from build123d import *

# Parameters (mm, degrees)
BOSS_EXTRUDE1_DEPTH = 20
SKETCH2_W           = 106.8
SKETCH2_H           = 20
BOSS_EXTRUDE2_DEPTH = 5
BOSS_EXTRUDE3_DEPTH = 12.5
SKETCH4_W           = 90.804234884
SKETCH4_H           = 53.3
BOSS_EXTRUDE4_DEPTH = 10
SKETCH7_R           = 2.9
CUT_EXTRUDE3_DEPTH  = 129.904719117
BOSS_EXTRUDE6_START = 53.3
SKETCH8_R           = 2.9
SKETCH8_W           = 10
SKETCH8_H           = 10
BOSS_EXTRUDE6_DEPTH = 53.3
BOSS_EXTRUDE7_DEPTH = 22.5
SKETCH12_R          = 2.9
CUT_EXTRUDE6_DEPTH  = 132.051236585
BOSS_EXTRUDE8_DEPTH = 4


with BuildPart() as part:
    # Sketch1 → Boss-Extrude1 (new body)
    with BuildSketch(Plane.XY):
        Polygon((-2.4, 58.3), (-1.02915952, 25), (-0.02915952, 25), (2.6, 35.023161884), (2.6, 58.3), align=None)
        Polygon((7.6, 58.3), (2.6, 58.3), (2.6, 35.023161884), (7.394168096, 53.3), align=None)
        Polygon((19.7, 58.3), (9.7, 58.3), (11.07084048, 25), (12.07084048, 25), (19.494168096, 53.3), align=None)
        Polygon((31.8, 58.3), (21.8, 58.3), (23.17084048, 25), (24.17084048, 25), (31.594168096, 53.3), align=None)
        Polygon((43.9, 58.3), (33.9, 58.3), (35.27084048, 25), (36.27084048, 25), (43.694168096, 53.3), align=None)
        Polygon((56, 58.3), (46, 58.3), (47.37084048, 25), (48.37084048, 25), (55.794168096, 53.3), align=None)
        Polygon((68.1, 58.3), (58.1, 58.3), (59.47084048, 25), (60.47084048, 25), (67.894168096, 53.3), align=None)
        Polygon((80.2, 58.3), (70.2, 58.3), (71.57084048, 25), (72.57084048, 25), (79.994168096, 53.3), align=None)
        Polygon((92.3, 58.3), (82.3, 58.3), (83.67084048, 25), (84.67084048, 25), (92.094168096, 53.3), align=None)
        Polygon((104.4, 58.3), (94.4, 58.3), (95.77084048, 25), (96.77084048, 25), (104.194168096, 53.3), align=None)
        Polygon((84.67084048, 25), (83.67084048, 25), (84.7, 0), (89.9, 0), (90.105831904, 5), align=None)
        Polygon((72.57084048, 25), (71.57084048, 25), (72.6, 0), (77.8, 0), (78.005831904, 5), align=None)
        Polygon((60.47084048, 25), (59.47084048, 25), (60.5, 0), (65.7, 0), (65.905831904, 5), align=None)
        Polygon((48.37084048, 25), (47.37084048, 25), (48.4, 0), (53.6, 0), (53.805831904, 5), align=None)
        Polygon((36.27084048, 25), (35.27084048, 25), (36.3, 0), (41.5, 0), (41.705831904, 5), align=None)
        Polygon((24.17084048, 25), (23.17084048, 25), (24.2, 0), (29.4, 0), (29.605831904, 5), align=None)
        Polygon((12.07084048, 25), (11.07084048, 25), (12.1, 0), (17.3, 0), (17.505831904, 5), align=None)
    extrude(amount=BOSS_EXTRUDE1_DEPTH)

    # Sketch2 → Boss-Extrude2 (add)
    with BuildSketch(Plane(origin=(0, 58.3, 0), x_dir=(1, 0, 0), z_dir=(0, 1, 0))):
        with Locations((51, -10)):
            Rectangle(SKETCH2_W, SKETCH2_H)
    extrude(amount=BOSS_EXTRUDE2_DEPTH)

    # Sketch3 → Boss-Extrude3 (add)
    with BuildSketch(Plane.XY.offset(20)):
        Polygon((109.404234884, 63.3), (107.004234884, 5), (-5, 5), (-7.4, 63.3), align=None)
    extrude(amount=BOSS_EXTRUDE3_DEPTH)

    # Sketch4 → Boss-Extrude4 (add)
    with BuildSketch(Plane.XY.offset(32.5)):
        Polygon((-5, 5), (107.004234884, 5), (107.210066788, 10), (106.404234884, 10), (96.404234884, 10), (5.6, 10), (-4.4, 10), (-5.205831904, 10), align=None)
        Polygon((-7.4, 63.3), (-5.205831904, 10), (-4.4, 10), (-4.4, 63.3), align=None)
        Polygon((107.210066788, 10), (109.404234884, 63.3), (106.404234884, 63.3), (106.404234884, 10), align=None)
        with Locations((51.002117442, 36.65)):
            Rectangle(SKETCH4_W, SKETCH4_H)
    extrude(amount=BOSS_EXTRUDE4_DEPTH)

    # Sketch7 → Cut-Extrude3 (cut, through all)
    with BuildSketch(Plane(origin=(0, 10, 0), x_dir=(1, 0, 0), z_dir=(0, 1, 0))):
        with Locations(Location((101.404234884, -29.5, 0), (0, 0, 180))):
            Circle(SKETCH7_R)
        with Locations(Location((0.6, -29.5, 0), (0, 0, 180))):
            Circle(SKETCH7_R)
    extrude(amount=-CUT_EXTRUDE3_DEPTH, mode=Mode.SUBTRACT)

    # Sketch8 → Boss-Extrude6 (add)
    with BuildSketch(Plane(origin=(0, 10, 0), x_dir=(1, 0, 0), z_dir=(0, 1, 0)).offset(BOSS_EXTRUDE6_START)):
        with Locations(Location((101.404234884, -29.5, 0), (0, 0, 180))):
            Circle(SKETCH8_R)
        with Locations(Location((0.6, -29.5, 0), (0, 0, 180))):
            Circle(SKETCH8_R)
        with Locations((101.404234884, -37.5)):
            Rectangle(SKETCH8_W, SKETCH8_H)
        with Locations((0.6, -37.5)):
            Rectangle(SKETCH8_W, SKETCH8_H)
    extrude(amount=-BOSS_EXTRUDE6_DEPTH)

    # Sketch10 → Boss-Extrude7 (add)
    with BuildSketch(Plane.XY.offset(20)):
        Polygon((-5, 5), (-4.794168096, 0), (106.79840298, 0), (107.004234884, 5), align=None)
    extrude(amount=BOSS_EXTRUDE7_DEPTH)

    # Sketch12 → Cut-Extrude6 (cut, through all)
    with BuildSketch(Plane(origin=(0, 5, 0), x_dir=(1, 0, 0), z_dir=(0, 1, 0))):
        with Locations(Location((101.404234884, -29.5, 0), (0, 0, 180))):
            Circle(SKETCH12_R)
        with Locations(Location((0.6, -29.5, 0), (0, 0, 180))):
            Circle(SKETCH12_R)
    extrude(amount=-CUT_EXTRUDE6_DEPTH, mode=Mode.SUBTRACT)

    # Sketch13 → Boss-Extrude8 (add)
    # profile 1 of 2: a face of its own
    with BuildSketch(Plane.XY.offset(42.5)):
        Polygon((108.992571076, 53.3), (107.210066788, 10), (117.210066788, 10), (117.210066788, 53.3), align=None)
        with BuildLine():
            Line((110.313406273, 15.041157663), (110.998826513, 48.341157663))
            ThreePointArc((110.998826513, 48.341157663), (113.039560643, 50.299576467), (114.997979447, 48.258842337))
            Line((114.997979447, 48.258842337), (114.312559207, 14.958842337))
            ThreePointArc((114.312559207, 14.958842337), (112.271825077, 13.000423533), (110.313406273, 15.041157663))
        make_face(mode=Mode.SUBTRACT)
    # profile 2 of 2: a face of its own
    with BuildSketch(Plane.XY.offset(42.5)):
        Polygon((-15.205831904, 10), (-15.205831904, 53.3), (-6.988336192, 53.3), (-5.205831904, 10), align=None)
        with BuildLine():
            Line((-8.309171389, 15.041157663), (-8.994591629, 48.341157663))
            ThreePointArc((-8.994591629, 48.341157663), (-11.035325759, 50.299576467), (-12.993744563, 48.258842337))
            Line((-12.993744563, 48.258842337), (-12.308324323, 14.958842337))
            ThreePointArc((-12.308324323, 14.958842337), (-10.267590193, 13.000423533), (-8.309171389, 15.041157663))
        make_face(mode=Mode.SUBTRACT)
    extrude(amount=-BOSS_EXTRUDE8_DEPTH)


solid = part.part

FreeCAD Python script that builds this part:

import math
import FreeCAD as App
import Part
import Sketcher
from FreeCAD import Vector

doc = App.newDocument("Part")
params = doc.addObject("Spreadsheet::Sheet", "Params")
for row, (alias, value) in enumerate([
    ("sketch1_width", "1 mm"),
    ("sketch1_width2", "10 mm"),
    ("sketch1_width3", "5.2 mm"),
    ("pad1_length", "20 mm"),
    ("sketch2_height", "20 mm"),
    ("sketch2_width", "106.8 mm"),
    ("pad2_length", "5 mm"),
    ("pad3_length", "12.5 mm"),
    ("sketch4_width", "3 mm"),
    ("sketch4_width2", "10 mm"),
    ("sketch4_height", "53.3 mm"),
    ("pad4_length", "10 mm"),
    ("sketch5_diameter", "5.8 mm"),
    ("sketch6_diameter", "5.8 mm"),
    ("sketch6_width", "10 mm"),
    ("pad5_length", "53.3 mm"),
    ("pad6_length", "22.5 mm"),
    ("sketch8_diameter", "5.8 mm"),
    ("sketch9_radius", "2 mm"),
    ("sketch9_width", "10 mm"),
    ("sketch9_height", "43.3 mm"),
    ("pad7_length", "4 mm"),
], start=1):
    params.set(f"A{row}", alias)
    params.set(f"B{row}", "=" + value)
    params.setAlias(f"B{row}", alias)

body = doc.addObject("PartDesign::Body", "Body")
body.AllowCompound = True

sketch1 = doc.addObject("Sketcher::SketchObject", "Sketch")
body.addObject(sketch1)
sketch1.AttachmentSupport = (doc.XY_Plane, [""])
sketch1.MapMode = "FlatFace"
sketch1.addGeometry(Part.LineSegment(Vector(-2.4, 58.3, 0), Vector(-1, 25, 0)), False)
sketch1.addGeometry(Part.LineSegment(Vector(-1, 25, 0), Vector(0, 25, 0)), False)
sketch1.addGeometry(Part.LineSegment(Vector(0, 25, 0), Vector(2.6, 35, 0)), False)
sketch1.addGeometry(Part.LineSegment(Vector(2.6, 35, 0), Vector(7.4, 53.3, 0)), False)
sketch1.addGeometry(Part.LineSegment(Vector(7.4, 53.3, 0), Vector(7.6, 58.3, 0)), False)
sketch1.addGeometry(Part.LineSegment(Vector(7.6, 58.3, 0), Vector(-2.4, 58.3, 0)), False)
sketch1.addGeometry(Part.LineSegment(Vector(19.7, 58.3, 0), Vector(9.7, 58.3, 0)), False)
sketch1.addGeometry(Part.LineSegment(Vector(9.7, 58.3, 0), Vector(11.1, 25, 0)), False)
sketch1.addGeometry(Part.LineSegment(Vector(11.1, 25, 0), Vector(12.1, 0, 0)), False)
sketch1.addGeometry(Part.LineSegment(Vector(12.1, 0, 0), Vector(17.3, 0, 0)), False)
sketch1.addGeometry(Part.LineSegment(Vector(17.3, 0, 0), Vector(17.5, 5, 0)), False)
sketch1.addGeometry(Part.LineSegment(Vector(17.5, 5, 0), Vector(12.1, 25, 0)), False)
sketch1.addGeometry(Part.LineSegment(Vector(12.1, 25, 0), Vector(19.5, 53.3, 0)), False)
sketch1.addGeometry(Part.LineSegment(Vector(19.5, 53.3, 0), Vector(19.7, 58.3, 0)), False)
sketch1.addGeometry(Part.LineSegment(Vector(31.8, 58.3, 0), Vector(21.8, 58.3, 0)), False)
sketch1.addGeometry(Part.LineSegment(Vector(21.8, 58.3, 0), Vector(23.2, 25, 0)), False)
sketch1.addGeometry(Part.LineSegment(Vector(23.2, 25, 0), Vector(24.2, 0, 0)), False)
sketch1.addGeometry(Part.LineSegment(Vector(24.2, 0, 0), Vector(29.4, 0, 0)), False)
sketch1.addGeometry(Part.LineSegment(Vector(29.4, 0, 0), Vector(29.6, 5, 0)), False)
sketch1.addGeometry(Part.LineSegment(Vector(29.6, 5, 0), Vector(24.2, 25, 0)), False)
sketch1.addGeometry(Part.LineSegment(Vector(24.2, 25, 0), Vector(31.6, 53.3, 0)), False)
sketch1.addGeometry(Part.LineSegment(Vector(31.6, 53.3, 0), Vector(31.8, 58.3, 0)), False)
sketch1.addGeometry(Part.LineSegment(Vector(43.9, 58.3, 0), Vector(33.9, 58.3, 0)), False)
sketch1.addGeometry(Part.LineSegment(Vector(33.9, 58.3, 0), Vector(35.3, 25, 0)), False)
sketch1.addGeometry(Part.LineSegment(Vector(35.3, 25, 0), Vector(36.3, 0, 0)), False)
sketch1.addGeometry(Part.LineSegment(Vector(36.3, 0, 0), Vector(41.5, 0, 0)), False)
sketch1.addGeometry(Part.LineSegment(Vector(41.5, 0, 0), Vector(41.7, 5, 0)), False)
sketch1.addGeometry(Part.LineSegment(Vector(41.7, 5, 0), Vector(36.3, 25, 0)), False)
sketch1.addGeometry(Part.LineSegment(Vector(36.3, 25, 0), Vector(43.7, 53.3, 0)), False)
sketch1.addGeometry(Part.LineSegment(Vector(43.7, 53.3, 0), Vector(43.9, 58.3, 0)), False)
sketch1.addGeometry(Part.LineSegment(Vector(56, 58.3, 0), Vector(46, 58.3, 0)), False)
sketch1.addGeometry(Part.LineSegment(Vector(46, 58.3, 0), Vector(47.4, 25, 0)), False)
sketch1.addGeometry(Part.LineSegment(Vector(47.4, 25, 0), Vector(48.4, 0, 0)), False)
sketch1.addGeometry(Part.LineSegment(Vector(48.4, 0, 0), Vector(53.6, 0, 0)), False)
sketch1.addGeometry(Part.LineSegment(Vector(53.6, 0, 0), Vector(53.8, 5, 0)), False)
sketch1.addGeometry(Part.LineSegment(Vector(53.8, 5, 0), Vector(48.4, 25, 0)), False)
sketch1.addGeometry(Part.LineSegment(Vector(48.4, 25, 0), Vector(55.8, 53.3, 0)), False)
sketch1.addGeometry(Part.LineSegment(Vector(55.8, 53.3, 0), Vector(56, 58.3, 0)), False)
sketch1.addGeometry(Part.LineSegment(Vector(68.1, 58.3, 0), Vector(58.1, 58.3, 0)), False)
sketch1.addGeometry(Part.LineSegment(Vector(58.1, 58.3, 0), Vector(59.5, 25, 0)), False)
sketch1.addGeometry(Part.LineSegment(Vector(59.5, 25, 0), Vector(60.5, 0, 0)), False)
sketch1.addGeometry(Part.LineSegment(Vector(60.5, 0, 0), Vector(65.7, 0, 0)), False)
sketch1.addGeometry(Part.LineSegment(Vector(65.7, 0, 0), Vector(65.9, 5, 0)), False)
sketch1.addGeometry(Part.LineSegment(Vector(65.9, 5, 0), Vector(60.5, 25, 0)), False)
sketch1.addGeometry(Part.LineSegment(Vector(60.5, 25, 0), Vector(67.9, 53.3, 0)), False)
sketch1.addGeometry(Part.LineSegment(Vector(67.9, 53.3, 0), Vector(68.1, 58.3, 0)), False)
sketch1.addGeometry(Part.LineSegment(Vector(80.2, 58.3, 0), Vector(70.2, 58.3, 0)), False)
sketch1.addGeometry(Part.LineSegment(Vector(70.2, 58.3, 0), Vector(71.6, 25, 0)), False)
sketch1.addGeometry(Part.LineSegment(Vector(71.6, 25, 0), Vector(72.6, 0, 0)), False)
sketch1.addGeometry(Part.LineSegment(Vector(72.6, 0, 0), Vector(77.8, 0, 0)), False)
sketch1.addGeometry(Part.LineSegment(Vector(77.8, 0, 0), Vector(78, 5, 0)), False)
sketch1.addGeometry(Part.LineSegment(Vector(78, 5, 0), Vector(72.6, 25, 0)), False)
sketch1.addGeometry(Part.LineSegment(Vector(72.6, 25, 0), Vector(80, 53.3, 0)), False)
sketch1.addGeometry(Part.LineSegment(Vector(80, 53.3, 0), Vector(80.2, 58.3, 0)), False)
sketch1.addGeometry(Part.LineSegment(Vector(92.3, 58.3, 0), Vector(82.3, 58.3, 0)), False)
sketch1.addGeometry(Part.LineSegment(Vector(82.3, 58.3, 0), Vector(83.7, 25, 0)), False)
sketch1.addGeometry(Part.LineSegment(Vector(83.7, 25, 0), Vector(84.7, 0, 0)), False)
sketch1.addGeometry(Part.LineSegment(Vector(84.7, 0, 0), Vector(89.9, 0, 0)), False)
sketch1.addGeometry(Part.LineSegment(Vector(89.9, 0, 0), Vector(90.1, 5, 0)), False)
sketch1.addGeometry(Part.LineSegment(Vector(90.1, 5, 0), Vector(84.7, 25, 0)), False)
sketch1.addGeometry(Part.LineSegment(Vector(84.7, 25, 0), Vector(92.1, 53.3, 0)), False)
sketch1.addGeometry(Part.LineSegment(Vector(92.1, 53.3, 0), Vector(92.3, 58.3, 0)), False)
sketch1.addGeometry(Part.LineSegment(Vector(104.4, 58.3, 0), Vector(94.4, 58.3, 0)), False)
sketch1.addGeometry(Part.LineSegment(Vector(94.4, 58.3, 0), Vector(95.8, 25, 0)), False)
sketch1.addGeometry(Part.LineSegment(Vector(95.8, 25, 0), Vector(96.8, 25, 0)), False)
sketch1.addGeometry(Part.LineSegment(Vector(96.8, 25, 0), Vector(104.2, 53.3, 0)), False)
sketch1.addGeometry(Part.LineSegment(Vector(104.2, 53.3, 0), Vector(104.4, 58.3, 0)), False)
sketch1.addConstraint(Sketcher.Constraint("Coincident", 0, 2, 1, 1))
sketch1.addConstraint(Sketcher.Constraint("Coincident", 1, 2, 2, 1))
sketch1.addConstraint(Sketcher.Constraint("Coincident", 2, 2, 3, 1))
sketch1.addConstraint(Sketcher.Constraint("Coincident", 3, 2, 4, 1))
sketch1.addConstraint(Sketcher.Constraint("Coincident", 4, 2, 5, 1))
sketch1.addConstraint(Sketcher.Constraint("Coincident", 5, 2, 0, 1))
sketch1.addConstraint(Sketcher.Constraint("Coincident", 6, 2, 7, 1))
sketch1.addConstraint(Sketcher.Constraint("Coincident", 7, 2, 8, 1))
sketch1.addConstraint(Sketcher.Constraint("Coincident", 8, 2, 9, 1))
sketch1.addConstraint(Sketcher.Constraint("Coincident", 9, 2, 10, 1))
sketch1.addConstraint(Sketcher.Constraint("Coincident", 10, 2, 11, 1))
sketch1.addConstraint(Sketcher.Constraint("Coincident", 11, 2, 12, 1))
sketch1.addConstraint(Sketcher.Constraint("Coincident", 12, 2, 13, 1))
sketch1.addConstraint(Sketcher.Constraint("Coincident", 13, 2, 6, 1))
sketch1.addConstraint(Sketcher.Constraint("Coincident", 14, 2, 15, 1))
sketch1.addConstraint(Sketcher.Constraint("Coincident", 15, 2, 16, 1))
sketch1.addConstraint(Sketcher.Constraint("Coincident", 16, 2, 17, 1))
sketch1.addConstraint(Sketcher.Constraint("Coincident", 17, 2, 18, 1))
sketch1.addConstraint(Sketcher.Constraint("Coincident", 18, 2, 19, 1))
sketch1.addConstraint(Sketcher.Constraint("Coincident", 19, 2, 20, 1))
sketch1.addConstraint(Sketcher.Constraint("Coincident", 20, 2, 21, 1))
sketch1.addConstraint(Sketcher.Constraint("Coincident", 21, 2, 14, 1))
sketch1.addConstraint(Sketcher.Constraint("Coincident", 22, 2, 23, 1))
sketch1.addConstraint(Sketcher.Constraint("Coincident", 23, 2, 24, 1))
sketch1.addConstraint(Sketcher.Constraint("Coincident", 24, 2, 25, 1))
sketch1.addConstraint(Sketcher.Constraint("Coincident", 25, 2, 26, 1))
sketch1.addConstraint(Sketcher.Constraint("Coincident", 26, 2, 27, 1))
sketch1.addConstraint(Sketcher.Constraint("Coincident", 27, 2, 28, 1))
sketch1.addConstraint(Sketcher.Constraint("Coincident", 28, 2, 29, 1))
sketch1.addConstraint(Sketcher.Constraint("Coincident", 29, 2, 22, 1))
sketch1.addConstraint(Sketcher.Constraint("Coincident", 30, 2, 31, 1))
sketch1.addConstraint(Sketcher.Constraint("Coincident", 31, 2, 32, 1))
sketch1.addConstraint(Sketcher.Constraint("Coincident", 32, 2, 33, 1))
sketch1.addConstraint(Sketcher.Constraint("Coincident", 33, 2, 34, 1))
sketch1.addConstraint(Sketcher.Constraint("Coincident", 34, 2, 35, 1))
sketch1.addConstraint(Sketcher.Constraint("Coincident", 35, 2, 36, 1))
sketch1.addConstraint(Sketcher.Constraint("Coincident", 36, 2, 37, 1))
sketch1.addConstraint(Sketcher.Constraint("Coincident", 37, 2, 30, 1))
sketch1.addConstraint(Sketcher.Constraint("Coincident", 38, 2, 39, 1))
sketch1.addConstraint(Sketcher.Constraint("Coincident", 39, 2, 40, 1))
sketch1.addConstraint(Sketcher.Constraint("Coincident", 40, 2, 41, 1))
sketch1.addConstraint(Sketcher.Constraint("Coincident", 41, 2, 42, 1))
sketch1.addConstraint(Sketcher.Constraint("Coincident", 42, 2, 43, 1))
sketch1.addConstraint(Sketcher.Constraint("Coincident", 43, 2, 44, 1))
sketch1.addConstraint(Sketcher.Constraint("Coincident", 44, 2, 45, 1))
sketch1.addConstraint(Sketcher.Constraint("Coincident", 45, 2, 38, 1))
sketch1.addConstraint(Sketcher.Constraint("Coincident", 46, 2, 47, 1))
sketch1.addConstraint(Sketcher.Constraint("Coincident", 47, 2, 48, 1))
sketch1.addConstraint(Sketcher.Constraint("Coincident", 48, 2, 49, 1))
sketch1.addConstraint(Sketcher.Constraint("Coincident", 49, 2, 50, 1))
sketch1.addConstraint(Sketcher.Constraint("Coincident", 50, 2, 51, 1))
sketch1.addConstraint(Sketcher.Constraint("Coincident", 51, 2, 52, 1))
sketch1.addConstraint(Sketcher.Constraint("Coincident", 52, 2, 53, 1))
sketch1.addConstraint(Sketcher.Constraint("Coincident", 53, 2, 46, 1))
sketch1.addConstraint(Sketcher.Constraint("Coincident", 54, 2, 55, 1))
sketch1.addConstraint(Sketcher.Constraint("Coincident", 55, 2, 56, 1))
sketch1.addConstraint(Sketcher.Constraint("Coincident", 56, 2, 57, 1))
sketch1.addConstraint(Sketcher.Constraint("Coincident", 57, 2, 58, 1))
sketch1.addConstraint(Sketcher.Constraint("Coincident", 58, 2, 59, 1))
sketch1.addConstraint(Sketcher.Constraint("Coincident", 59, 2, 60, 1))
sketch1.addConstraint(Sketcher.Constraint("Coincident", 60, 2, 61, 1))
sketch1.addConstraint(Sketcher.Constraint("Coincident", 61, 2, 54, 1))
sketch1.addConstraint(Sketcher.Constraint("Coincident", 62, 2, 63, 1))
sketch1.addConstraint(Sketcher.Constraint("Coincident", 63, 2, 64, 1))
sketch1.addConstraint(Sketcher.Constraint("Coincident", 64, 2, 65, 1))
sketch1.addConstraint(Sketcher.Constraint("Coincident", 65, 2, 66, 1))
sketch1.addConstraint(Sketcher.Constraint("Coincident", 66, 2, 62, 1))
sketch1.addConstraint(Sketcher.Constraint("Horizontal", 1))
sketch1.addConstraint(Sketcher.Constraint("Horizontal", 5))
sketch1.addConstraint(Sketcher.Constraint("Horizontal", 6))
sketch1.addConstraint(Sketcher.Constraint("Horizontal", 9))
sketch1.addConstraint(Sketcher.Constraint("Horizontal", 14))
sketch1.addConstraint(Sketcher.Constraint("Horizontal", 17))
sketch1.addConstraint(Sketcher.Constraint("Horizontal", 22))
sketch1.addConstraint(Sketcher.Constraint("Horizontal", 25))
sketch1.addConstraint(Sketcher.Constraint("Horizontal", 30))
sketch1.addConstraint(Sketcher.Constraint("Horizontal", 33))
sketch1.addConstraint(Sketcher.Constraint("Horizontal", 38))
sketch1.addConstraint(Sketcher.Constraint("Horizontal", 41))
sketch1.addConstraint(Sketcher.Constraint("Horizontal", 46))
sketch1.addConstraint(Sketcher.Constraint("Horizontal", 49))
sketch1.addConstraint(Sketcher.Constraint("Horizontal", 54))
sketch1.addConstraint(Sketcher.Constraint("Horizontal", 57))
sketch1.addConstraint(Sketcher.Constraint("Horizontal", 62))
sketch1.addConstraint(Sketcher.Constraint("Horizontal", 64))
sketch1.addConstraint(Sketcher.Constraint("PointOnObject", 8, 2, -1))
sketch1.addConstraint(Sketcher.Constraint("PointOnObject", 16, 2, -1))
sketch1.addConstraint(Sketcher.Constraint("PointOnObject", 24, 2, -1))
sketch1.addConstraint(Sketcher.Constraint("PointOnObject", 32, 2, -1))
sketch1.addConstraint(Sketcher.Constraint("PointOnObject", 40, 2, -1))
sketch1.addConstraint(Sketcher.Constraint("PointOnObject", 48, 2, -1))
sketch1.addConstraint(Sketcher.Constraint("PointOnObject", 56, 2, -1))
sketch1.addConstraint(Sketcher.Constraint("Parallel", 2, 3))
sketch1.addConstraint(Sketcher.Constraint("Parallel", 0, 7))
sketch1.addConstraint(Sketcher.Constraint("Parallel", 7, 8))
sketch1.addConstraint(Sketcher.Constraint("Parallel", 4, 10))
sketch1.addConstraint(Sketcher.Constraint("Parallel", 3, 12))
sketch1.addConstraint(Sketcher.Constraint("Parallel", 10, 13))
sketch1.addConstraint(Sketcher.Constraint("Parallel", 8, 15))
sketch1.addConstraint(Sketcher.Constraint("Parallel", 15, 16))
sketch1.addConstraint(Sketcher.Constraint("Parallel", 13, 18))
sketch1.addConstraint(Sketcher.Constraint("Parallel", 11, 19))
sketch1.addConstraint(Sketcher.Constraint("Parallel", 12, 20))
sketch1.addConstraint(Sketcher.Constraint("Parallel", 18, 21))
sketch1.addConstraint(Sketcher.Constraint("Parallel", 16, 23))
sketch1.addConstraint(Sketcher.Constraint("Parallel", 23, 24))
sketch1.addConstraint(Sketcher.Constraint("Parallel", 21, 26))
sketch1.addConstraint(Sketcher.Constraint("Parallel", 19, 27))
sketch1.addConstraint(Sketcher.Constraint("Parallel", 20, 28))
sketch1.addConstraint(Sketcher.Constraint("Parallel", 26, 29))
sketch1.addConstraint(Sketcher.Constraint("Parallel", 24, 31))
sketch1.addConstraint(Sketcher.Constraint("Parallel", 31, 32))
sketch1.addConstraint(Sketcher.Constraint("Parallel", 29, 34))
sketch1.addConstraint(Sketcher.Constraint("Parallel", 27, 35))
sketch1.addConstraint(Sketcher.Constraint("Parallel", 28, 36))
sketch1.addConstraint(Sketcher.Constraint("Parallel", 34, 37))
sketch1.addConstraint(Sketcher.Constraint("Parallel", 32, 39))
sketch1.addConstraint(Sketcher.Constraint("Parallel", 39, 40))
sketch1.addConstraint(Sketcher.Constraint("Parallel", 37, 42))
sketch1.addConstraint(Sketcher.Constraint("Parallel", 35, 43))
sketch1.addConstraint(Sketcher.Constraint("Parallel", 36, 44))
sketch1.addConstraint(Sketcher.Constraint("Parallel", 42, 45))
sketch1.addConstraint(Sketcher.Constraint("Parallel", 40, 47))
sketch1.addConstraint(Sketcher.Constraint("Parallel", 47, 48))
sketch1.addConstraint(Sketcher.Constraint("Parallel", 45, 50))
sketch1.addConstraint(Sketcher.Constraint("Parallel", 43, 51))
sketch1.addConstraint(Sketcher.Constraint("Parallel", 44, 52))
sketch1.addConstraint(Sketcher.Constraint("Parallel", 50, 53))
sketch1.addConstraint(Sketcher.Constraint("Parallel", 48, 55))
sketch1.addConstraint(Sketcher.Constraint("Parallel", 55, 56))
sketch1.addConstraint(Sketcher.Constraint("Parallel", 53, 58))
sketch1.addConstraint(Sketcher.Constraint("Parallel", 51, 59))
sketch1.addConstraint(Sketcher.Constraint("Parallel", 52, 60))
sketch1.addConstraint(Sketcher.Constraint("Parallel", 58, 61))
sketch1.addConstraint(Sketcher.Constraint("Parallel", 56, 63))
sketch1.addConstraint(Sketcher.Constraint("Parallel", 60, 65))
sketch1.addConstraint(Sketcher.Constraint("Parallel", 61, 66))
sketch1.addConstraint(Sketcher.Constraint("Horizontal", 5, 2, 6, 2))
sketch1.addConstraint(Sketcher.Constraint("Horizontal", 1, 2, 7, 2))
sketch1.addConstraint(Sketcher.Constraint("Horizontal", 7, 2, 11, 2))
sketch1.addConstraint(Sketcher.Constraint("Horizontal", 3, 2, 12, 2))
sketch1.addConstraint(Sketcher.Constraint("Horizontal", 13, 2, 14, 2))
sketch1.addConstraint(Sketcher.Constraint("Horizontal", 11, 2, 15, 2))
sketch1.addConstraint(Sketcher.Constraint("Horizontal", 10, 2, 18, 2))
sketch1.addConstraint(Sketcher.Constraint("Horizontal", 15, 2, 19, 2))
sketch1.addConstraint(Sketcher.Constraint("Horizontal", 12, 2, 20, 2))
sketch1.addConstraint(Sketcher.Constraint("Horizontal", 21, 2, 22, 2))
sketch1.addConstraint(Sketcher.Constraint("Horizontal", 19, 2, 23, 2))
sketch1.addConstraint(Sketcher.Constraint("Horizontal", 18, 2, 26, 2))
sketch1.addConstraint(Sketcher.Constraint("Horizontal", 23, 2, 27, 2))
sketch1.addConstraint(Sketcher.Constraint("Horizontal", 20, 2, 28, 2))
sketch1.addConstraint(Sketcher.Constraint("Horizontal", 29, 2, 30, 2))
sketch1.addConstraint(Sketcher.Constraint("Horizontal", 27, 2, 31, 2))
sketch1.addConstraint(Sketcher.Constraint("Horizontal", 26, 2, 34, 2))
sketch1.addConstraint(Sketcher.Constraint("Horizontal", 31, 2, 35, 2))
sketch1.addConstraint(Sketcher.Constraint("Horizontal", 28, 2, 36, 2))
sketch1.addConstraint(Sketcher.Constraint("Horizontal", 37, 2, 38, 2))
sketch1.addConstraint(Sketcher.Constraint("Horizontal", 35, 2, 39, 2))
sketch1.addConstraint(Sketcher.Constraint("Horizontal", 34, 2, 42, 2))
sketch1.addConstraint(Sketcher.Constraint("Horizontal", 39, 2, 43, 2))
sketch1.addConstraint(Sketcher.Constraint("Horizontal", 36, 2, 44, 2))
sketch1.addConstraint(Sketcher.Constraint("Horizontal", 45, 2, 46, 2))
sketch1.addConstraint(Sketcher.Constraint("Horizontal", 43, 2, 47, 2))
sketch1.addConstraint(Sketcher.Constraint("Horizontal", 42, 2, 50, 2))
sketch1.addConstraint(Sketcher.Constraint("Horizontal", 47, 2, 51, 2))
sketch1.addConstraint(Sketcher.Constraint("Horizontal", 44, 2, 52, 2))
sketch1.addConstraint(Sketcher.Constraint("Horizontal", 53, 2, 54, 2))
sketch1.addConstraint(Sketcher.Constraint("Horizontal", 51, 2, 55, 2))
sketch1.addConstraint(Sketcher.Constraint("Horizontal", 50, 2, 58, 2))
sketch1.addConstraint(Sketcher.Constraint("Horizontal", 55, 2, 59, 2))
sketch1.addConstraint(Sketcher.Constraint("Horizontal", 52, 2, 60, 2))
sketch1.addConstraint(Sketcher.Constraint("Horizontal", 61, 2, 62, 2))
sketch1.addConstraint(Sketcher.Constraint("Horizontal", 59, 2, 63, 2))
sketch1.addConstraint(Sketcher.Constraint("Horizontal", 60, 2, 65, 2))
sketch1.addConstraint(Sketcher.Constraint("Equal", 5, 6))
sketch1.addConstraint(Sketcher.Constraint("Equal", 6, 14))
sketch1.addConstraint(Sketcher.Constraint("Equal", 14, 22))
sketch1.addConstraint(Sketcher.Constraint("Equal", 22, 30))
sketch1.addConstraint(Sketcher.Constraint("Equal", 30, 38))
sketch1.addConstraint(Sketcher.Constraint("Equal", 38, 46))
sketch1.addConstraint(Sketcher.Constraint("Equal", 46, 54))
sketch1.addConstraint(Sketcher.Constraint("Equal", 54, 62))
sketch1.addConstraint(Sketcher.Constraint("Equal", 4, 10))
sketch1.addConstraint(Sketcher.Constraint("DistanceX", 1, 1, 1, 2, 1.0))
sketch1.addConstraint(Sketcher.Constraint("DistanceX", 5, 2, 5, 1, 10.0))
sketch1.addConstraint(Sketcher.Constraint("DistanceX", 9, 1, 9, 2, 5.2))
sketch1.addConstraint(Sketcher.Constraint("DistanceY", -1, 1, 0, 2, 25.0))
sketch1.addConstraint(Sketcher.Constraint("DistanceY", -1, 1, 10, 2, 5.0))
sketch1.addConstraint(Sketcher.Constraint("DistanceX", -1, 1, 30, 2, 46.0))
sketch1.addConstraint(Sketcher.Constraint("DistanceX", -1, 1, 2, 2, 2.6))
sketch1.addConstraint(Sketcher.Constraint("DistanceY", -1, 1, 3, 2, 53.3))
sketch1.addConstraint(Sketcher.Constraint("DistanceX", -1, 1, 4, 2, 7.6))
sketch1.addConstraint(Sketcher.Constraint("DistanceX", -1, 1, 6, 2, 9.7))
sketch1.addConstraint(Sketcher.Constraint("DistanceX", -1, 1, 8, 2, 12.1))
sketch1.addConstraint(Sketcher.Constraint("DistanceX", -1, 1, 14, 2, 21.8))
sketch1.addConstraint(Sketcher.Constraint("DistanceX", -1, 1, 22, 2, 33.9))
sketch1.addConstraint(Sketcher.Constraint("DistanceX", -1, 1, 38, 2, 58.1))
sketch1.addConstraint(Sketcher.Constraint("DistanceX", -1, 1, 46, 2, 70.2))
sketch1.addConstraint(Sketcher.Constraint("DistanceX", -1, 1, 54, 2, 82.3))
sketch1.addConstraint(Sketcher.Constraint("DistanceX", -1, 1, 62, 2, 94.4))
sketch1.addConstraint(Sketcher.Constraint("Distance", 2, 10.362251))
sketch1.setExpression("Constraints[183]", "Params.sketch1_width")
sketch1.setExpression("Constraints[184]", "Params.sketch1_width2")
sketch1.setExpression("Constraints[185]", "Params.sketch1_width3")
pad1 = doc.addObject("PartDesign::Pad", "Pad")
body.addObject(pad1)
pad1.Profile = sketch1
pad1.setExpression("Length", "Params.pad1_length")

sketch2 = doc.addObject("Sketcher::SketchObject", "Sketch001")
body.addObject(sketch2)
sketch2.AttachmentSupport = (doc.XZ_Plane, [""])
sketch2.MapMode = "FlatFace"
sketch2.AttachmentOffset = App.Placement(Vector(0, 0, -58.3), App.Rotation())
sketch2.addGeometry(Part.LineSegment(Vector(-2, 0, 0), Vector(-2, 20, 0)), False)
sketch2.addGeometry(Part.LineSegment(Vector(-2, 20, 0), Vector(104, 20, 0)), False)
sketch2.addGeometry(Part.LineSegment(Vector(104, 20, 0), Vector(104, 0, 0)), False)
sketch2.addGeometry(Part.LineSegment(Vector(104, 0, 0), Vector(-2, 0, 0)), False)
sketch2.addConstraint(Sketcher.Constraint("Coincident", 0, 2, 1, 1))
sketch2.addConstraint(Sketcher.Constraint("Coincident", 1, 2, 2, 1))
sketch2.addConstraint(Sketcher.Constraint("Coincident", 2, 2, 3, 1))
sketch2.addConstraint(Sketcher.Constraint("Coincident", 3, 2, 0, 1))
sketch2.addConstraint(Sketcher.Constraint("Vertical", 0))
sketch2.addConstraint(Sketcher.Constraint("Horizontal", 1))
sketch2.addConstraint(Sketcher.Constraint("Vertical", 2))
sketch2.addConstraint(Sketcher.Constraint("Horizontal", 3))
sketch2.addConstraint(Sketcher.Constraint("PointOnObject", 2, 2, -1))
sketch2.addConstraint(Sketcher.Constraint("DistanceY", 0, 1, 0, 2, 20.0))
sketch2.addConstraint(Sketcher.Constraint("DistanceX", 1, 1, 1, 2, 106.8))
sketch2.addConstraint(Sketcher.Constraint("DistanceX", 0, 2, -1, 1, 2.4))
sketch2.setExpression("Constraints[9]", "Params.sketch2_height")
sketch2.setExpression("Constraints[10]", "Params.sketch2_width")
pad2 = doc.addObject("PartDesign::Pad", "Pad001")
body.addObject(pad2)
pad2.Profile = sketch2
pad2.setExpression("Length", "Params.pad2_length")
pad2.Reversed = True

sketch3 = doc.addObject("Sketcher::SketchObject", "Sketch002")
body.addObject(sketch3)
sketch3.AttachmentSupport = (doc.XY_Plane, [""])
sketch3.MapMode = "FlatFace"
sketch3.AttachmentOffset = App.Placement(Vector(0, 0, 20), App.Rotation())
sketch3.addGeometry(Part.LineSegment(Vector(107, 5, 0), Vector(109, 63, 0)), False)
sketch3.addGeometry(Part.LineSegment(Vector(109, 63, 0), Vector(-7, 63, 0)), False)
sketch3.addGeometry(Part.LineSegment(Vector(-7, 63, 0), Vector(-5, 5, 0)), False)
sketch3.addGeometry(Part.LineSegment(Vector(-5, 5, 0), Vector(107, 5, 0)), False)
sketch3.addConstraint(Sketcher.Constraint("Coincident", 0, 2, 1, 1))
sketch3.addConstraint(Sketcher.Constraint("Coincident", 1, 2, 2, 1))
sketch3.addConstraint(Sketcher.Constraint("Coincident", 2, 2, 3, 1))
sketch3.addConstraint(Sketcher.Constraint("Coincident", 3, 2, 0, 1))
sketch3.addConstraint(Sketcher.Constraint("Horizontal", 1))
sketch3.addConstraint(Sketcher.Constraint("Horizontal", 3))
sketch3.addConstraint(Sketcher.Constraint("Equal", 0, 2))
sketch3.addConstraint(Sketcher.Constraint("DistanceX", 2, 2, -1, 1, 5.0))
sketch3.addConstraint(Sketcher.Constraint("DistanceY", -1, 1, 2, 2, 5.0))
sketch3.addConstraint(Sketcher.Constraint("DistanceY", -1, 1, 0, 2, 63.3))
sketch3.addConstraint(Sketcher.Constraint("DistanceX", 1, 2, -1, 1, 7.4))
sketch3.addConstraint(Sketcher.Constraint("DistanceX", 1, 2, 1, 1, 116.804235))
pad3 = doc.addObject("PartDesign::Pad", "Pad002")
body.addObject(pad3)
pad3.Profile = sketch3
pad3.setExpression("Length", "Params.pad3_length")

sketch4 = doc.addObject("Sketcher::SketchObject", "Sketch003")
body.addObject(sketch4)
sketch4.AttachmentSupport = (doc.XY_Plane, [""])
sketch4.MapMode = "FlatFace"
sketch4.AttachmentOffset = App.Placement(Vector(0, 0, 32.5), App.Rotation())
sketch4.addGeometry(Part.LineSegment(Vector(-5, 5, 0), Vector(107, 5, 0)), False)
sketch4.addGeometry(Part.LineSegment(Vector(107, 5, 0), Vector(107.2, 10, 0)), False)
sketch4.addGeometry(Part.LineSegment(Vector(107.2, 10, 0), Vector(109.4, 63.3, 0)), False)
sketch4.addGeometry(Part.LineSegment(Vector(109.4, 63.3, 0), Vector(106.4, 63.3, 0)), False)
sketch4.addGeometry(Part.LineSegment(Vector(106.4, 63.3, 0), Vector(106.4, 10, 0)), False)
sketch4.addGeometry(Part.LineSegment(Vector(106.4, 10, 0), Vector(96.4, 10, 0)), False)
sketch4.addGeometry(Part.LineSegment(Vector(96.4, 10, 0), Vector(96.4, 63.3, 0)), False)
sketch4.addGeometry(Part.LineSegment(Vector(96.4, 63.3, 0), Vector(5.6, 63.3, 0)), False)
sketch4.addGeometry(Part.LineSegment(Vector(5.6, 63.3, 0), Vector(5.6, 10, 0)), False)
sketch4.addGeometry(Part.LineSegment(Vector(5.6, 10, 0), Vector(-4.4, 10, 0)), False)
sketch4.addGeometry(Part.LineSegment(Vector(-4.4, 10, 0), Vector(-4.4, 63.3, 0)), False)
sketch4.addGeometry(Part.LineSegment(Vector(-4.4, 63.3, 0), Vector(-7.4, 63.3, 0)), False)
sketch4.addGeometry(Part.LineSegment(Vector(-7.4, 63.3, 0), Vector(-5.2, 10, 0)), False)
sketch4.addGeometry(Part.LineSegment(Vector(-5.2, 10, 0), Vector(-5, 5, 0)), False)
sketch4.addConstraint(Sketcher.Constraint("Coincident", 0, 2, 1, 1))
sketch4.addConstraint(Sketcher.Constraint("Coincident", 1, 2, 2, 1))
sketch4.addConstraint(Sketcher.Constraint("Coincident", 2, 2, 3, 1))
sketch4.addConstraint(Sketcher.Constraint("Coincident", 3, 2, 4, 1))
sketch4.addConstraint(Sketcher.Constraint("Coincident", 4, 2, 5, 1))
sketch4.addConstraint(Sketcher.Constraint("Coincident", 5, 2, 6, 1))
sketch4.addConstraint(Sketcher.Constraint("Coincident", 6, 2, 7, 1))
sketch4.addConstraint(Sketcher.Constraint("Coincident", 7, 2, 8, 1))
sketch4.addConstraint(Sketcher.Constraint("Coincident", 8, 2, 9, 1))
sketch4.addConstraint(Sketcher.Constraint("Coincident", 9, 2, 10, 1))
sketch4.addConstraint(Sketcher.Constraint("Coincident", 10, 2, 11, 1))
sketch4.addConstraint(Sketcher.Constraint("Coincident", 11, 2, 12, 1))
sketch4.addConstraint(Sketcher.Constraint("Coincident", 12, 2, 13, 1))
sketch4.addConstraint(Sketcher.Constraint("Coincident", 13, 2, 0, 1))
sketch4.addConstraint(Sketcher.Constraint("Horizontal", 0))
sketch4.addConstraint(Sketcher.Constraint("Horizontal", 3))
sketch4.addConstraint(Sketcher.Constraint("Vertical", 4))
sketch4.addConstraint(Sketcher.Constraint("Horizontal", 5))
sketch4.addConstraint(Sketcher.Constraint("Vertical", 6))
sketch4.addConstraint(Sketcher.Constraint("Horizontal", 7))
sketch4.addConstraint(Sketcher.Constraint("Vertical", 8))
sketch4.addConstraint(Sketcher.Constraint("Horizontal", 9))
sketch4.addConstraint(Sketcher.Constraint("Vertical", 10))
sketch4.addConstraint(Sketcher.Constraint("Horizontal", 11))
sketch4.addConstraint(Sketcher.Constraint("Parallel", 1, 2))
sketch4.addConstraint(Sketcher.Constraint("Parallel", 12, 13))
sketch4.addConstraint(Sketcher.Constraint("Horizontal", 1, 2, 4, 2))
sketch4.addConstraint(Sketcher.Constraint("Horizontal", 3, 2, 6, 2))
sketch4.addConstraint(Sketcher.Constraint("Horizontal", 5, 2, 8, 2))
sketch4.addConstraint(Sketcher.Constraint("Horizontal", 7, 2, 10, 2))
sketch4.addConstraint(Sketcher.Constraint("Horizontal", 9, 2, 12, 2))
sketch4.addConstraint(Sketcher.Constraint("Equal", 5, 9))
sketch4.addConstraint(Sketcher.Constraint("Equal", 3, 11))
sketch4.addConstraint(Sketcher.Constraint("Equal", 2, 12))
sketch4.addConstraint(Sketcher.Constraint("DistanceX", 3, 2, 3, 1, 3.0))
sketch4.addConstraint(Sketcher.Constraint("DistanceX", 5, 2, 5, 1, 10.0))
sketch4.addConstraint(Sketcher.Constraint("DistanceY", 4, 2, 4, 1, 53.3))
sketch4.addConstraint(Sketcher.Constraint("DistanceY", -1, 1, 0, 2, 5.0))
sketch4.addConstraint(Sketcher.Constraint("DistanceY", -1, 1, 1, 2, 10.0))
sketch4.addConstraint(Sketcher.Constraint("DistanceX", 13, 2, -1, 1, 5.0))
sketch4.addConstraint(Sketcher.Constraint("DistanceX", -1, 1, 7, 2, 5.6))
sketch4.addConstraint(Sketcher.Constraint("DistanceX", 0, 1, 0, 2, 112.004235))
sketch4.setExpression("Constraints[34]", "Params.sketch4_width")
sketch4.setExpression("Constraints[35]", "Params.sketch4_width2")
sketch4.setExpression("Constraints[36]", "Params.sketch4_height")
pad4 = doc.addObject("PartDesign::Pad", "Pad003")
body.addObject(pad4)
pad4.Profile = sketch4
pad4.setExpression("Length", "Params.pad4_length")

sketch5 = doc.addObject("Sketcher::SketchObject", "Sketch004")
body.addObject(sketch5)
sketch5.AttachmentSupport = (doc.XZ_Plane, [""])
sketch5.MapMode = "FlatFace"
sketch5.AttachmentOffset = App.Placement(Vector(0, 0, -10), App.Rotation())
sketch5.addGeometry(Part.Circle(Vector(101.4, 29.5, 0), Vector(0, 0, 1), 2.9), False)
sketch5.addGeometry(Part.Circle(Vector(0.6, 29.5, 0), Vector(0, 0, 1), 2.9), False)
sketch5.addConstraint(Sketcher.Constraint("Equal", 0, 1))
sketch5.addConstraint(Sketcher.Constraint("Horizontal", 0, 3, 1, 3))
sketch5.addConstraint(Sketcher.Constraint("Diameter", 0, 5.8))
sketch5.addConstraint(Sketcher.Constraint("DistanceY", -1, 1, 0, 3, 29.5))
sketch5.addConstraint(Sketcher.Constraint("DistanceX", -1, 1, 1, 3, 0.6))
sketch5.addConstraint(Sketcher.Constraint("DistanceX", -1, 1, 0, 3, 101.404235))
sketch5.setExpression("Constraints[2]", "Params.sketch5_diameter")
pocket1 = doc.addObject("PartDesign::Pocket", "Pocket")
body.addObject(pocket1)
pocket1.Profile = sketch5
pocket1.Type = "ThroughAll"
pocket1.Reversed = True

sketch6 = doc.addObject("Sketcher::SketchObject", "Sketch005")
body.addObject(sketch6)
sketch6.AttachmentSupport = (doc.XZ_Plane, [""])
sketch6.MapMode = "FlatFace"
sketch6.AttachmentOffset = App.Placement(Vector(0, 0, -63.3), App.Rotation())
sketch6.addGeometry(Part.Circle(Vector(101.4, 29.5, 0), Vector(0, 0, 1), 2.9), False)
sketch6.addGeometry(Part.Circle(Vector(0.6, 29.5, 0), Vector(0, 0, 1), 2.9), False)
sketch6.addGeometry(Part.LineSegment(Vector(96.4, 32.5, 0), Vector(96.4, 42.5, 0)), False)
sketch6.addGeometry(Part.LineSegment(Vector(96.4, 42.5, 0), Vector(106.4, 42.5, 0)), False)
sketch6.addGeometry(Part.LineSegment(Vector(106.4, 42.5, 0), Vector(106.4, 32.5, 0)), False)
sketch6.addGeometry(Part.LineSegment(Vector(106.4, 32.5, 0), Vector(96.4, 32.5, 0)), False)
sketch6.addGeometry(Part.LineSegment(Vector(-4.4, 32.5, 0), Vector(-4.4, 42.5, 0)), False)
sketch6.addGeometry(Part.LineSegment(Vector(-4.4, 42.5, 0), Vector(5.6, 42.5, 0)), False)
sketch6.addGeometry(Part.LineSegment(Vector(5.6, 42.5, 0), Vector(5.6, 32.5, 0)), False)
sketch6.addGeometry(Part.LineSegment(Vector(5.6, 32.5, 0), Vector(-4.4, 32.5, 0)), False)
sketch6.addConstraint(Sketcher.Constraint("Coincident", 2, 2, 3, 1))
sketch6.addConstraint(Sketcher.Constraint("Coincident", 3, 2, 4, 1))
sketch6.addConstraint(Sketcher.Constraint("Coincident", 4, 2, 5, 1))
sketch6.addConstraint(Sketcher.Constraint("Coincident", 5, 2, 2, 1))
sketch6.addConstraint(Sketcher.Constraint("Coincident", 6, 2, 7, 1))
sketch6.addConstraint(Sketcher.Constraint("Coincident", 7, 2, 8, 1))
sketch6.addConstraint(Sketcher.Constraint("Coincident", 8, 2, 9, 1))
sketch6.addConstraint(Sketcher.Constraint("Coincident", 9, 2, 6, 1))
sketch6.addConstraint(Sketcher.Constraint("Vertical", 2))
sketch6.addConstraint(Sketcher.Constraint("Horizontal", 3))
sketch6.addConstraint(Sketcher.Constraint("Vertical", 4))
sketch6.addConstraint(Sketcher.Constraint("Horizontal", 5))
sketch6.addConstraint(Sketcher.Constraint("Vertical", 6))
sketch6.addConstraint(Sketcher.Constraint("Horizontal", 7))
sketch6.addConstraint(Sketcher.Constraint("Vertical", 8))
sketch6.addConstraint(Sketcher.Constraint("Horizontal", 9))
sketch6.addConstraint(Sketcher.Constraint("Equal", 0, 1))
sketch6.addConstraint(Sketcher.Constraint("Horizontal", 0, 3, 1, 3))
sketch6.addConstraint(Sketcher.Constraint("Horizontal", 3, 2, 6, 2))
sketch6.addConstraint(Sketcher.Constraint("Horizontal", 5, 2, 8, 2))
sketch6.addConstraint(Sketcher.Constraint("Equal", 5, 7))
sketch6.addConstraint(Sketcher.Constraint("Equal", 9, 2))
sketch6.addConstraint(Sketcher.Constraint("Diameter", 0, 5.8))
sketch6.addConstraint(Sketcher.Constraint("DistanceX", 3, 1, 3, 2, 10.0))
sketch6.addConstraint(Sketcher.Constraint("DistanceX", 2, 2, 0, 3, 5.0))
sketch6.addConstraint(Sketcher.Constraint("DistanceY", 0, 3, 2, 2, 13.0))
sketch6.addConstraint(Sketcher.Constraint("DistanceX", 6, 2, 1, 3, 5.0))
sketch6.addConstraint(Sketcher.Constraint("DistanceY", -1, 1, 0, 3, 29.5))
sketch6.addConstraint(Sketcher.Constraint("DistanceX", -1, 1, 1, 3, 0.6))
sketch6.addConstraint(Sketcher.Constraint("DistanceX", -1, 1, 0, 3, 101.404235))
sketch6.setExpression("Constraints[22]", "Params.sketch6_diameter")
sketch6.setExpression("Constraints[23]", "Params.sketch6_width")
pad5 = doc.addObject("PartDesign::Pad", "Pad004")
body.addObject(pad5)
pad5.Profile = sketch6
pad5.setExpression("Length", "Params.pad5_length")

sketch7 = doc.addObject("Sketcher::SketchObject", "Sketch006")
body.addObject(sketch7)
sketch7.AttachmentSupport = (doc.XY_Plane, [""])
sketch7.MapMode = "FlatFace"
sketch7.AttachmentOffset = App.Placement(Vector(0, 0, 20), App.Rotation())
sketch7.addGeometry(Part.LineSegment(Vector(-5, 5, 0), Vector(-5, 0, 0)), False)
sketch7.addGeometry(Part.LineSegment(Vector(-5, 0, 0), Vector(107, 0, 0)), False)
sketch7.addGeometry(Part.LineSegment(Vector(107, 0, 0), Vector(107, 5, 0)), False)
sketch7.addGeometry(Part.LineSegment(Vector(107, 5, 0), Vector(-5, 5, 0)), False)
sketch7.addConstraint(Sketcher.Constraint("Coincident", 0, 2, 1, 1))
sketch7.addConstraint(Sketcher.Constraint("Coincident", 1, 2, 2, 1))
sketch7.addConstraint(Sketcher.Constraint("Coincident", 2, 2, 3, 1))
sketch7.addConstraint(Sketcher.Constraint("Coincident", 3, 2, 0, 1))
sketch7.addConstraint(Sketcher.Constraint("Horizontal", 1))
sketch7.addConstraint(Sketcher.Constraint("Horizontal", 3))
sketch7.addConstraint(Sketcher.Constraint("PointOnObject", 0, 2, -1))
sketch7.addConstraint(Sketcher.Constraint("Equal", 0, 2))
sketch7.addConstraint(Sketcher.Constraint("DistanceY", -1, 1, 2, 2, 5.0))
sketch7.addConstraint(Sketcher.Constraint("DistanceX", 3, 2, -1, 1, 5.0))
sketch7.addConstraint(Sketcher.Constraint("DistanceX", 1, 1, 1, 2, 111.592571))
sketch7.addConstraint(Sketcher.Constraint("DistanceX", 3, 2, 3, 1, 112.004235))
pad6 = doc.addObject("PartDesign::Pad", "Pad005")
body.addObject(pad6)
pad6.Profile = sketch7
pad6.setExpression("Length", "Params.pad6_length")

sketch8 = doc.addObject("Sketcher::SketchObject", "Sketch007")
body.addObject(sketch8)
sketch8.AttachmentSupport = (doc.XZ_Plane, [""])
sketch8.MapMode = "FlatFace"
sketch8.AttachmentOffset = App.Placement(Vector(0, 0, -5), App.Rotation())
sketch8.addGeometry(Part.Circle(Vector(101.4, 29.5, 0), Vector(0, 0, 1), 2.9), False)
sketch8.addGeometry(Part.Circle(Vector(0.6, 29.5, 0), Vector(0, 0, 1), 2.9), False)
sketch8.addConstraint(Sketcher.Constraint("Equal", 0, 1))
sketch8.addConstraint(Sketcher.Constraint("Horizontal", 0, 3, 1, 3))
sketch8.addConstraint(Sketcher.Constraint("Diameter", 0, 5.8))
sketch8.addConstraint(Sketcher.Constraint("DistanceY", -1, 1, 0, 3, 29.5))
sketch8.addConstraint(Sketcher.Constraint("DistanceX", -1, 1, 1, 3, 0.6))
sketch8.addConstraint(Sketcher.Constraint("DistanceX", -1, 1, 0, 3, 101.404235))
sketch8.setExpression("Constraints[2]", "Params.sketch8_diameter")
pocket2 = doc.addObject("PartDesign::Pocket", "Pocket001")
body.addObject(pocket2)
pocket2.Profile = sketch8
pocket2.Type = "ThroughAll"
pocket2.Reversed = True

sketch9 = doc.addObject("Sketcher::SketchObject", "Sketch008")
body.addObject(sketch9)
sketch9.AttachmentSupport = (doc.XY_Plane, [""])
sketch9.MapMode = "FlatFace"
sketch9.AttachmentOffset = App.Placement(Vector(0, 0, 42.5), App.Rotation())
sketch9.addGeometry(Part.LineSegment(Vector(109, 53.3, 0), Vector(107.2, 10, 0)), False)
sketch9.addGeometry(Part.LineSegment(Vector(107.2, 10, 0), Vector(117.2, 10, 0)), False)
sketch9.addGeometry(Part.LineSegment(Vector(117.2, 10, 0), Vector(117.2, 53.3, 0)), False)
sketch9.addGeometry(Part.LineSegment(Vector(117.2, 53.3, 0), Vector(109, 53.3, 0)), False)
sketch9.addGeometry(Part.ArcOfCircle(Part.Circle(Vector(112.3, 15, 0), Vector(0, 0, 1), 2), math.radians(179), math.radians(359)), False)
sketch9.addGeometry(Part.LineSegment(Vector(110.3, 15, 0), Vector(111, 48.3, 0)), False)
sketch9.addGeometry(Part.ArcOfCircle(Part.Circle(Vector(113, 48.3, 0), Vector(0, 0, 1), 2), math.radians(-1), math.radians(179)), False)
sketch9.addGeometry(Part.LineSegment(Vector(115, 48.3, 0), Vector(114.3, 15, 0)), False)
sketch9.addGeometry(Part.LineSegment(Vector(-15.2, 53.3, 0), Vector(-15.2, 10, 0)), False)
sketch9.addGeometry(Part.LineSegment(Vector(-15.2, 10, 0), Vector(-5.2, 10, 0)), False)
sketch9.addGeometry(Part.LineSegment(Vector(-5.2, 10, 0), Vector(-7, 53.3, 0)), False)
sketch9.addGeometry(Part.LineSegment(Vector(-7, 53.3, 0), Vector(-15.2, 53.3, 0)), False)
sketch9.addGeometry(Part.ArcOfCircle(Part.Circle(Vector(-10.3, 15, 0), Vector(0, 0, 1), 2), math.radians(-179), math.radians(1)), False)
sketch9.addGeometry(Part.LineSegment(Vector(-12.3, 15, 0), Vector(-13, 48.3, 0)), False)
sketch9.addGeometry(Part.ArcOfCircle(Part.Circle(Vector(-11, 48.3, 0), Vector(0, 0, 1), 2), math.radians(1), math.radians(181)), False)
sketch9.addGeometry(Part.LineSegment(Vector(-9, 48.3, 0), Vector(-8.3, 15, 0)), False)
sketch9.addConstraint(Sketcher.Constraint("Coincident", 0, 2, 1, 1))
sketch9.addConstraint(Sketcher.Constraint("Coincident", 1, 2, 2, 1))
sketch9.addConstraint(Sketcher.Constraint("Coincident", 2, 2, 3, 1))
sketch9.addConstraint(Sketcher.Constraint("Coincident", 3, 2, 0, 1))
sketch9.addConstraint(Sketcher.Constraint("Tangent", 4, 1, 5, 1))
sketch9.addConstraint(Sketcher.Constraint("Tangent", 5, 2, 6, 2))
sketch9.addConstraint(Sketcher.Constraint("Tangent", 6, 1, 7, 1))
sketch9.addConstraint(Sketcher.Constraint("Tangent", 7, 2, 4, 2))
sketch9.addConstraint(Sketcher.Constraint("Coincident", 8, 2, 9, 1))
sketch9.addConstraint(Sketcher.Constraint("Coincident", 9, 2, 10, 1))
sketch9.addConstraint(Sketcher.Constraint("Coincident", 10, 2, 11, 1))
sketch9.addConstraint(Sketcher.Constraint("Coincident", 11, 2, 8, 1))
sketch9.addConstraint(Sketcher.Constraint("Tangent", 12, 1, 13, 1))
sketch9.addConstraint(Sketcher.Constraint("Tangent", 13, 2, 14, 2))
sketch9.addConstraint(Sketcher.Constraint("Tangent", 14, 1, 15, 1))
sketch9.addConstraint(Sketcher.Constraint("Tangent", 15, 2, 12, 2))
sketch9.addConstraint(Sketcher.Constraint("Horizontal", 1))
sketch9.addConstraint(Sketcher.Constraint("Vertical", 2))
sketch9.addConstraint(Sketcher.Constraint("Horizontal", 3))
sketch9.addConstraint(Sketcher.Constraint("Vertical", 8))
sketch9.addConstraint(Sketcher.Constraint("Horizontal", 9))
sketch9.addConstraint(Sketcher.Constraint("Horizontal", 11))
sketch9.addConstraint(Sketcher.Constraint("Equal", 4, 6))
sketch9.addConstraint(Sketcher.Constraint("Equal", 6, 12))
sketch9.addConstraint(Sketcher.Constraint("Equal", 12, 14))
sketch9.addConstraint(Sketcher.Constraint("Horizontal", 4, 3, 12, 3))
sketch9.addConstraint(Sketcher.Constraint("Horizontal", 6, 3, 14, 3))
sketch9.addConstraint(Sketcher.Constraint("Horizontal", 1, 2, 8, 2))
sketch9.addConstraint(Sketcher.Constraint("Horizontal", 3, 2, 10, 2))
sketch9.addConstraint(Sketcher.Constraint("Horizontal", 7, 2, 12, 1))
sketch9.addConstraint(Sketcher.Constraint("Equal", 1, 9))
sketch9.addConstraint(Sketcher.Constraint("Equal", 3, 11))
sketch9.addConstraint(Sketcher.Constraint("Radius", 4, 2.0))
sketch9.addConstraint(Sketcher.Constraint("DistanceX", 1, 1, 1, 2, 10.0))
sketch9.addConstraint(Sketcher.Constraint("DistanceY", 2, 1, 2, 2, 43.3))
sketch9.addConstraint(Sketcher.Constraint("DistanceY", -1, 1, 4, 3, 15.0))
sketch9.addConstraint(Sketcher.Constraint("DistanceY", -1, 1, 0, 2, 10.0))
sketch9.addConstraint(Sketcher.Constraint("DistanceY", 6, 3, 2, 2, 5.0))
sketch9.addConstraint(Sketcher.Constraint("DistanceX", 8, 2, 0, 2, 122.415899))
sketch9.addConstraint(Sketcher.Constraint("DistanceX", 3, 2, 3, 1, 8.217496))
sketch9.addConstraint(Sketcher.Constraint("DistanceX", 14, 3, -1, 1, 10.994168))
sketch9.addConstraint(Sketcher.Constraint("DistanceX", -1, 1, 3, 2, 108.992571))
sketch9.addConstraint(Sketcher.Constraint("DistanceX", -1, 1, 6, 1, 114.997979))
sketch9.addConstraint(Sketcher.Constraint("DistanceX", -1, 1, 7, 2, 114.312559))
sketch9.setExpression("Constraints[32]", "Params.sketch9_radius")
sketch9.setExpression("Constraints[33]", "Params.sketch9_width")
sketch9.setExpression("Constraints[34]", "Params.sketch9_height")
pad7 = doc.addObject("PartDesign::Pad", "Pad006")
body.addObject(pad7)
pad7.Profile = sketch9
pad7.setExpression("Length", "Params.pad7_length")
pad7.Reversed = True

doc.recompute()
